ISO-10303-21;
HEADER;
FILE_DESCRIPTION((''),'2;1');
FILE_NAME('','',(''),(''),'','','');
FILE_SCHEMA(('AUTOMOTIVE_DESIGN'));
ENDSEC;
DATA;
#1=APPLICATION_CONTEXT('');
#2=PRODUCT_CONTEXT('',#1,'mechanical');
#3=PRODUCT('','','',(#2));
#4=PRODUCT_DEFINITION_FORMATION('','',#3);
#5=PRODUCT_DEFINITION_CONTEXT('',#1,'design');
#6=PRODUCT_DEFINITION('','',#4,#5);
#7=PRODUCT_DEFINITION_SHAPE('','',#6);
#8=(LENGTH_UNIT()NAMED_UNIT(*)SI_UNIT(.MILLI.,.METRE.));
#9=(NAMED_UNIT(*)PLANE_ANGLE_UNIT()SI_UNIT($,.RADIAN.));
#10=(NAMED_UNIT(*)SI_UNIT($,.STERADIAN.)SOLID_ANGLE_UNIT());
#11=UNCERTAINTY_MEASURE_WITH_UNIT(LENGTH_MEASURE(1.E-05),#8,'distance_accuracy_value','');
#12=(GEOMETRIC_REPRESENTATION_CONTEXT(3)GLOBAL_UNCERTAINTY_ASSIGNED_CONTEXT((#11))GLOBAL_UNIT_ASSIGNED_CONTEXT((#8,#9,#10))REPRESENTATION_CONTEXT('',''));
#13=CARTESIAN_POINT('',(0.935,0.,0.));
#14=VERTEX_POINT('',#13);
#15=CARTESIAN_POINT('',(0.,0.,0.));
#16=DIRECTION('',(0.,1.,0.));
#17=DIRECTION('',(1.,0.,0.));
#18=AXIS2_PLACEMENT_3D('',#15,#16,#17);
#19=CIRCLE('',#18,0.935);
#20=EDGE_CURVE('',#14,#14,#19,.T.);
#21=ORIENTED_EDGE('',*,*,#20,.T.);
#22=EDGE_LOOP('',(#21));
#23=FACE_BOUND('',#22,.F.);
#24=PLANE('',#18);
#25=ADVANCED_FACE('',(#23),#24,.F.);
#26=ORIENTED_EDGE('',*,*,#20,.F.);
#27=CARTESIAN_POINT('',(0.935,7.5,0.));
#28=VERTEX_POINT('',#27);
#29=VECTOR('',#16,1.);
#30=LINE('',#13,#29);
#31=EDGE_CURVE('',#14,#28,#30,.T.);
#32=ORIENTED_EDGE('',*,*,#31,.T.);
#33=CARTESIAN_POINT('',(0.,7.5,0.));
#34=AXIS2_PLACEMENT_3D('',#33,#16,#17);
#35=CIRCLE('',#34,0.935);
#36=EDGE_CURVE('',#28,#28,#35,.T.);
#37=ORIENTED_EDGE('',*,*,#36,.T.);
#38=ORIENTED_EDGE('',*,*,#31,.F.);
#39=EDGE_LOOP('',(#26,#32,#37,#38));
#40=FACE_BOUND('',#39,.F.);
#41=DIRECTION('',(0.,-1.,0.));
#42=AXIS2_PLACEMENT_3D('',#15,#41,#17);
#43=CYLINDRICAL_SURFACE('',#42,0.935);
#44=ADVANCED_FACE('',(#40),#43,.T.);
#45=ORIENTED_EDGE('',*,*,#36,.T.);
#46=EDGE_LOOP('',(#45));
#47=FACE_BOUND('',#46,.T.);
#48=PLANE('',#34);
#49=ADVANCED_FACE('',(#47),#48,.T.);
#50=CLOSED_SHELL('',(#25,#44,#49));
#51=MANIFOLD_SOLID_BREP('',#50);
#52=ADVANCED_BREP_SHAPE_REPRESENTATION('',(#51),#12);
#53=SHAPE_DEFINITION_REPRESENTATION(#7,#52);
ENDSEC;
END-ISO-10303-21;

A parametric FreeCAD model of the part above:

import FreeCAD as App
import Part
import Sketcher

doc = App.newDocument("Part")
body = doc.addObject("PartDesign::Body", "Body")

# Sketch on XZ plane
sketch1 = body.newObject("Sketcher::SketchObject", "Sketch")
sketch1.AttachmentSupport = (doc.getObject("XZ_Plane"), [""])
sketch1.MapMode = "FlatFace"
sketch1.addGeometry(Part.Circle(App.Vector(0, 0, 0), App.Vector(0, 0, 1), 0.9), False)
sketch1.addConstraint([
    Sketcher.Constraint("Coincident", 0, 3, -1, 1),
    Sketcher.Constraint("Diameter", 0, 1.87),
])
pad1 = body.newObject("PartDesign::Pad", "Pad")
pad1.Profile = sketch1
pad1.Length = 7.5
pad1.Reversed = True

doc.recompute()
